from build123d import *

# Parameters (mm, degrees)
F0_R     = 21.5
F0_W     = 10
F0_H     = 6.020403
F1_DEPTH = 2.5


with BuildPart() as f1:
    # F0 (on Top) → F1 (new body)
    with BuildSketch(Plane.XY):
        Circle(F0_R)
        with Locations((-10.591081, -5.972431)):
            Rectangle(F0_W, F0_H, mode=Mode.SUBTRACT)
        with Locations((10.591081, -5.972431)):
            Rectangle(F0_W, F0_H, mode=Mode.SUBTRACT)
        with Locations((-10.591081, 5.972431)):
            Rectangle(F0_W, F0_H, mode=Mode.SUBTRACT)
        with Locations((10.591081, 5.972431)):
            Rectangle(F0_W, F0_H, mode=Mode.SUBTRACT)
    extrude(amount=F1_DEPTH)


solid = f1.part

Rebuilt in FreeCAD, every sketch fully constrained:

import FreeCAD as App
import Part
import Sketcher
Q = App.Units.Quantity

doc = App.newDocument("Part")
params = doc.addObject("Spreadsheet::Sheet", "Params")
for row, (alias, value) in enumerate([
    ("sketch1_diameter", "43 mm"),
    ("sketch1_width", "10 mm"),
    ("pad1_length", "2.5 mm"),
], start=1):
    params.set(f"A{row}", alias)
    params.set(f"B{row}", "=" + value)
    params.setAlias(f"B{row}", alias)

body = doc.addObject("PartDesign::Body", "Body")

sketch1 = body.newObject("Sketcher::SketchObject", "Sketch")
sketch1.AttachmentSupport = (doc.getObject("XY_Plane"), [""])
sketch1.MapMode = "FlatFace"
sketch1.addGeometry(Part.Circle(App.Vector(0, 0, 0), App.Vector(0, 0, 1), 22), False)
sketch1.addGeometry(Part.LineSegment(App.Vector(-6, -9, 0), App.Vector(-16, -9, 0)), False)
sketch1.addGeometry(Part.LineSegment(App.Vector(-16, -9, 0), App.Vector(-16, -3, 0)), False)
sketch1.addGeometry(Part.LineSegment(App.Vector(-16, -3, 0), App.Vector(-6, -3, 0)), False)
sketch1.addGeometry(Part.LineSegment(App.Vector(-6, -3, 0), App.Vector(-6, -9, 0)), False)
sketch1.addGeometry(Part.LineSegment(App.Vector(16, -9, 0), App.Vector(6, -9, 0)), False)
sketch1.addGeometry(Part.LineSegment(App.Vector(6, -9, 0), App.Vector(6, -3, 0)), False)
sketch1.addGeometry(Part.LineSegment(App.Vector(6, -3, 0), App.Vector(16, -3, 0)), False)
sketch1.addGeometry(Part.LineSegment(App.Vector(16, -3, 0), App.Vector(16, -9, 0)), False)
sketch1.addGeometry(Part.LineSegment(App.Vector(-6, 3, 0), App.Vector(-16, 3, 0)), False)
sketch1.addGeometry(Part.LineSegment(App.Vector(-16, 3, 0), App.Vector(-16, 9, 0)), False)
sketch1.addGeometry(Part.LineSegment(App.Vector(-16, 9, 0), App.Vector(-6, 9, 0)), False)
sketch1.addGeometry(Part.LineSegment(App.Vector(-6, 9, 0), App.Vector(-6, 3, 0)), False)
sketch1.addGeometry(Part.LineSegment(App.Vector(16, 3, 0), App.Vector(6, 3, 0)), False)
sketch1.addGeometry(Part.LineSegment(App.Vector(6, 3, 0), App.Vector(6, 9, 0)), False)
sketch1.addGeometry(Part.LineSegment(App.Vector(6, 9, 0), App.Vector(16, 9, 0)), False)
sketch1.addGeometry(Part.LineSegment(App.Vector(16, 9, 0), App.Vector(16, 3, 0)), False)
sketch1.addConstraint(Sketcher.Constraint("Coincident", 1, 2, 2, 1))
sketch1.addConstraint(Sketcher.Constraint("Coincident", 2, 2, 3, 1))
sketch1.addConstraint(Sketcher.Constraint("Coincident", 3, 2, 4, 1))
sketch1.addConstraint(Sketcher.Constraint("Coincident", 4, 2, 1, 1))
sketch1.addConstraint(Sketcher.Constraint("Coincident", 5, 2, 6, 1))
sketch1.addConstraint(Sketcher.Constraint("Coincident", 6, 2, 7, 1))
sketch1.addConstraint(Sketcher.Constraint("Coincident", 7, 2, 8, 1))
sketch1.addConstraint(Sketcher.Constraint("Coincident", 8, 2, 5, 1))
sketch1.addConstraint(Sketcher.Constraint("Coincident", 9, 2, 10, 1))
sketch1.addConstraint(Sketcher.Constraint("Coincident", 10, 2, 11, 1))
sketch1.addConstraint(Sketcher.Constraint("Coincident", 11, 2, 12, 1))
sketch1.addConstraint(Sketcher.Constraint("Coincident", 12, 2, 9, 1))
sketch1.addConstraint(Sketcher.Constraint("Coincident", 13, 2, 14, 1))
sketch1.addConstraint(Sketcher.Constraint("Coincident", 14, 2, 15, 1))
sketch1.addConstraint(Sketcher.Constraint("Coincident", 15, 2, 16, 1))
sketch1.addConstraint(Sketcher.Constraint("Coincident", 16, 2, 13, 1))
sketch1.addConstraint(Sketcher.Constraint("Horizontal", 1))
sketch1.addConstraint(Sketcher.Constraint("Vertical", 2))
sketch1.addConstraint(Sketcher.Constraint("Horizontal", 3))
sketch1.addConstraint(Sketcher.Constraint("Vertical", 4))
sketch1.addConstraint(Sketcher.Constraint("Horizontal", 5))
sketch1.addConstraint(Sketcher.Constraint("Vertical", 6))
sketch1.addConstraint(Sketcher.Constraint("Horizontal", 7))
sketch1.addConstraint(Sketcher.Constraint("Vertical", 8))
sketch1.addConstraint(Sketcher.Constraint("Horizontal", 9))
sketch1.addConstraint(Sketcher.Constraint("Vertical", 10))
sketch1.addConstraint(Sketcher.Constraint("Horizontal", 11))
sketch1.addConstraint(Sketcher.Constraint("Vertical", 12))
sketch1.addConstraint(Sketcher.Constraint("Horizontal", 13))
sketch1.addConstraint(Sketcher.Constraint("Vertical", 14))
sketch1.addConstraint(Sketcher.Constraint("Horizontal", 15))
sketch1.addConstraint(Sketcher.Constraint("Vertical", 16))
sketch1.addConstraint(Sketcher.Constraint("Coincident", 0, 3, -1, 1))
sketch1.addConstraint(Sketcher.Constraint("Symmetric", 7, 2, 9, 2, -1, 1))
sketch1.addConstraint(Sketcher.Constraint("Symmetric", 5, 2, 11, 2, -1, 1))
sketch1.addConstraint(Sketcher.Constraint("Symmetric", 3, 2, 13, 2, -1, 1))
sketch1.addConstraint(Sketcher.Constraint("Symmetric", 1, 2, 15, 2, -1, 1))
sketch1.addConstraint(Sketcher.Constraint("Symmetric", 4, 2, 5, 2, -2))
sketch1.addConstraint(Sketcher.Constraint("Symmetric", 2, 2, 7, 2, -2))
sketch1.addConstraint(Sketcher.Constraint("Diameter", 0, Q("43 mm")))
sketch1.addConstraint(Sketcher.Constraint("DistanceX", 1, 2, 1, 1, Q("10 mm")))
sketch1.addConstraint(Sketcher.Constraint("DistanceY", 2, 1, 2, 2, Q("6.020403 mm")))
sketch1.addConstraint(Sketcher.Constraint("DistanceX", 1, 2, -1, 1, Q("15.591081 mm")))
sketch1.addConstraint(Sketcher.Constraint("DistanceY", 2, 2, -1, 1, Q("2.962229 mm")))
sketch1.setExpression("Constraints[39]", "Params.sketch1_diameter")
sketch1.setExpression("Constraints[40]", "Params.sketch1_width")
pad1 = body.newObject("PartDesign::Pad", "Pad")
pad1.Profile = sketch1
pad1.setExpression("Length", "Params.pad1_length")

doc.recompute()
